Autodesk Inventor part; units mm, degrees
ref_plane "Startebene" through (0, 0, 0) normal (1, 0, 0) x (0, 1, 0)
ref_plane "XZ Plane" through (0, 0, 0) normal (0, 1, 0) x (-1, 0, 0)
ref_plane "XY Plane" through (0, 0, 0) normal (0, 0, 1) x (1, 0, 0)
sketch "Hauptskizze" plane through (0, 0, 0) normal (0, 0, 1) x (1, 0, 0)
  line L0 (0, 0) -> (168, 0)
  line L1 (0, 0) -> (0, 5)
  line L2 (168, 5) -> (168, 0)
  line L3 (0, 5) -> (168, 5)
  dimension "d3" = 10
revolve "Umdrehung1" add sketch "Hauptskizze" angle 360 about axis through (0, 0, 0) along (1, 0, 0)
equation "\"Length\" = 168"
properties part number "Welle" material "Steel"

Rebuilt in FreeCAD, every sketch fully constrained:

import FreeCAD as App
import Part
import Sketcher
from FreeCAD import Vector
Q = App.Units.Quantity

doc = App.newDocument("Part")
body = doc.addObject("PartDesign::Body", "Body")

# Sketch on XY plane
sketch1 = body.newObject("Sketcher::SketchObject", "Sketch")
sketch1.AttachmentSupport = (doc.getObject("XY_Plane"), [""])
sketch1.MapMode = "FlatFace"
sketch1.addGeometry(Part.LineSegment(Vector(0, 5, 0), Vector(0, 0, 0)), False)
sketch1.addGeometry(Part.LineSegment(Vector(0, 0, 0), Vector(168, 0, 0)), False)
sketch1.addGeometry(Part.LineSegment(Vector(168, 0, 0), Vector(168, 5, 0)), False)
sketch1.addGeometry(Part.LineSegment(Vector(168, 5, 0), Vector(0, 5, 0)), False)
sketch1.addConstraint(Sketcher.Constraint("Coincident", 0, 2, 1, 1))
sketch1.addConstraint(Sketcher.Constraint("Coincident", 1, 2, 2, 1))
sketch1.addConstraint(Sketcher.Constraint("Coincident", 2, 2, 3, 1))
sketch1.addConstraint(Sketcher.Constraint("Coincident", 3, 2, 0, 1))
sketch1.addConstraint(Sketcher.Constraint("Vertical", 0))
sketch1.addConstraint(Sketcher.Constraint("Horizontal", 1))
sketch1.addConstraint(Sketcher.Constraint("Vertical", 2))
sketch1.addConstraint(Sketcher.Constraint("Horizontal", 3))
sketch1.addConstraint(Sketcher.Constraint("Coincident", 0, 2, -1, 1))
sketch1.addConstraint(Sketcher.Constraint("DistanceX", 1, 1, 1, 2, Q("168 mm")))
sketch1.addConstraint(Sketcher.Constraint("DistanceY", 0, 2, 0, 1, Q("5 mm")))
revolution = body.newObject("PartDesign::Revolution", "Revolution")
revolution.Profile = sketch1
revolution.ReferenceAxis = (sketch1, ["H_Axis"])
revolution.Angle = 360

doc.recompute()
